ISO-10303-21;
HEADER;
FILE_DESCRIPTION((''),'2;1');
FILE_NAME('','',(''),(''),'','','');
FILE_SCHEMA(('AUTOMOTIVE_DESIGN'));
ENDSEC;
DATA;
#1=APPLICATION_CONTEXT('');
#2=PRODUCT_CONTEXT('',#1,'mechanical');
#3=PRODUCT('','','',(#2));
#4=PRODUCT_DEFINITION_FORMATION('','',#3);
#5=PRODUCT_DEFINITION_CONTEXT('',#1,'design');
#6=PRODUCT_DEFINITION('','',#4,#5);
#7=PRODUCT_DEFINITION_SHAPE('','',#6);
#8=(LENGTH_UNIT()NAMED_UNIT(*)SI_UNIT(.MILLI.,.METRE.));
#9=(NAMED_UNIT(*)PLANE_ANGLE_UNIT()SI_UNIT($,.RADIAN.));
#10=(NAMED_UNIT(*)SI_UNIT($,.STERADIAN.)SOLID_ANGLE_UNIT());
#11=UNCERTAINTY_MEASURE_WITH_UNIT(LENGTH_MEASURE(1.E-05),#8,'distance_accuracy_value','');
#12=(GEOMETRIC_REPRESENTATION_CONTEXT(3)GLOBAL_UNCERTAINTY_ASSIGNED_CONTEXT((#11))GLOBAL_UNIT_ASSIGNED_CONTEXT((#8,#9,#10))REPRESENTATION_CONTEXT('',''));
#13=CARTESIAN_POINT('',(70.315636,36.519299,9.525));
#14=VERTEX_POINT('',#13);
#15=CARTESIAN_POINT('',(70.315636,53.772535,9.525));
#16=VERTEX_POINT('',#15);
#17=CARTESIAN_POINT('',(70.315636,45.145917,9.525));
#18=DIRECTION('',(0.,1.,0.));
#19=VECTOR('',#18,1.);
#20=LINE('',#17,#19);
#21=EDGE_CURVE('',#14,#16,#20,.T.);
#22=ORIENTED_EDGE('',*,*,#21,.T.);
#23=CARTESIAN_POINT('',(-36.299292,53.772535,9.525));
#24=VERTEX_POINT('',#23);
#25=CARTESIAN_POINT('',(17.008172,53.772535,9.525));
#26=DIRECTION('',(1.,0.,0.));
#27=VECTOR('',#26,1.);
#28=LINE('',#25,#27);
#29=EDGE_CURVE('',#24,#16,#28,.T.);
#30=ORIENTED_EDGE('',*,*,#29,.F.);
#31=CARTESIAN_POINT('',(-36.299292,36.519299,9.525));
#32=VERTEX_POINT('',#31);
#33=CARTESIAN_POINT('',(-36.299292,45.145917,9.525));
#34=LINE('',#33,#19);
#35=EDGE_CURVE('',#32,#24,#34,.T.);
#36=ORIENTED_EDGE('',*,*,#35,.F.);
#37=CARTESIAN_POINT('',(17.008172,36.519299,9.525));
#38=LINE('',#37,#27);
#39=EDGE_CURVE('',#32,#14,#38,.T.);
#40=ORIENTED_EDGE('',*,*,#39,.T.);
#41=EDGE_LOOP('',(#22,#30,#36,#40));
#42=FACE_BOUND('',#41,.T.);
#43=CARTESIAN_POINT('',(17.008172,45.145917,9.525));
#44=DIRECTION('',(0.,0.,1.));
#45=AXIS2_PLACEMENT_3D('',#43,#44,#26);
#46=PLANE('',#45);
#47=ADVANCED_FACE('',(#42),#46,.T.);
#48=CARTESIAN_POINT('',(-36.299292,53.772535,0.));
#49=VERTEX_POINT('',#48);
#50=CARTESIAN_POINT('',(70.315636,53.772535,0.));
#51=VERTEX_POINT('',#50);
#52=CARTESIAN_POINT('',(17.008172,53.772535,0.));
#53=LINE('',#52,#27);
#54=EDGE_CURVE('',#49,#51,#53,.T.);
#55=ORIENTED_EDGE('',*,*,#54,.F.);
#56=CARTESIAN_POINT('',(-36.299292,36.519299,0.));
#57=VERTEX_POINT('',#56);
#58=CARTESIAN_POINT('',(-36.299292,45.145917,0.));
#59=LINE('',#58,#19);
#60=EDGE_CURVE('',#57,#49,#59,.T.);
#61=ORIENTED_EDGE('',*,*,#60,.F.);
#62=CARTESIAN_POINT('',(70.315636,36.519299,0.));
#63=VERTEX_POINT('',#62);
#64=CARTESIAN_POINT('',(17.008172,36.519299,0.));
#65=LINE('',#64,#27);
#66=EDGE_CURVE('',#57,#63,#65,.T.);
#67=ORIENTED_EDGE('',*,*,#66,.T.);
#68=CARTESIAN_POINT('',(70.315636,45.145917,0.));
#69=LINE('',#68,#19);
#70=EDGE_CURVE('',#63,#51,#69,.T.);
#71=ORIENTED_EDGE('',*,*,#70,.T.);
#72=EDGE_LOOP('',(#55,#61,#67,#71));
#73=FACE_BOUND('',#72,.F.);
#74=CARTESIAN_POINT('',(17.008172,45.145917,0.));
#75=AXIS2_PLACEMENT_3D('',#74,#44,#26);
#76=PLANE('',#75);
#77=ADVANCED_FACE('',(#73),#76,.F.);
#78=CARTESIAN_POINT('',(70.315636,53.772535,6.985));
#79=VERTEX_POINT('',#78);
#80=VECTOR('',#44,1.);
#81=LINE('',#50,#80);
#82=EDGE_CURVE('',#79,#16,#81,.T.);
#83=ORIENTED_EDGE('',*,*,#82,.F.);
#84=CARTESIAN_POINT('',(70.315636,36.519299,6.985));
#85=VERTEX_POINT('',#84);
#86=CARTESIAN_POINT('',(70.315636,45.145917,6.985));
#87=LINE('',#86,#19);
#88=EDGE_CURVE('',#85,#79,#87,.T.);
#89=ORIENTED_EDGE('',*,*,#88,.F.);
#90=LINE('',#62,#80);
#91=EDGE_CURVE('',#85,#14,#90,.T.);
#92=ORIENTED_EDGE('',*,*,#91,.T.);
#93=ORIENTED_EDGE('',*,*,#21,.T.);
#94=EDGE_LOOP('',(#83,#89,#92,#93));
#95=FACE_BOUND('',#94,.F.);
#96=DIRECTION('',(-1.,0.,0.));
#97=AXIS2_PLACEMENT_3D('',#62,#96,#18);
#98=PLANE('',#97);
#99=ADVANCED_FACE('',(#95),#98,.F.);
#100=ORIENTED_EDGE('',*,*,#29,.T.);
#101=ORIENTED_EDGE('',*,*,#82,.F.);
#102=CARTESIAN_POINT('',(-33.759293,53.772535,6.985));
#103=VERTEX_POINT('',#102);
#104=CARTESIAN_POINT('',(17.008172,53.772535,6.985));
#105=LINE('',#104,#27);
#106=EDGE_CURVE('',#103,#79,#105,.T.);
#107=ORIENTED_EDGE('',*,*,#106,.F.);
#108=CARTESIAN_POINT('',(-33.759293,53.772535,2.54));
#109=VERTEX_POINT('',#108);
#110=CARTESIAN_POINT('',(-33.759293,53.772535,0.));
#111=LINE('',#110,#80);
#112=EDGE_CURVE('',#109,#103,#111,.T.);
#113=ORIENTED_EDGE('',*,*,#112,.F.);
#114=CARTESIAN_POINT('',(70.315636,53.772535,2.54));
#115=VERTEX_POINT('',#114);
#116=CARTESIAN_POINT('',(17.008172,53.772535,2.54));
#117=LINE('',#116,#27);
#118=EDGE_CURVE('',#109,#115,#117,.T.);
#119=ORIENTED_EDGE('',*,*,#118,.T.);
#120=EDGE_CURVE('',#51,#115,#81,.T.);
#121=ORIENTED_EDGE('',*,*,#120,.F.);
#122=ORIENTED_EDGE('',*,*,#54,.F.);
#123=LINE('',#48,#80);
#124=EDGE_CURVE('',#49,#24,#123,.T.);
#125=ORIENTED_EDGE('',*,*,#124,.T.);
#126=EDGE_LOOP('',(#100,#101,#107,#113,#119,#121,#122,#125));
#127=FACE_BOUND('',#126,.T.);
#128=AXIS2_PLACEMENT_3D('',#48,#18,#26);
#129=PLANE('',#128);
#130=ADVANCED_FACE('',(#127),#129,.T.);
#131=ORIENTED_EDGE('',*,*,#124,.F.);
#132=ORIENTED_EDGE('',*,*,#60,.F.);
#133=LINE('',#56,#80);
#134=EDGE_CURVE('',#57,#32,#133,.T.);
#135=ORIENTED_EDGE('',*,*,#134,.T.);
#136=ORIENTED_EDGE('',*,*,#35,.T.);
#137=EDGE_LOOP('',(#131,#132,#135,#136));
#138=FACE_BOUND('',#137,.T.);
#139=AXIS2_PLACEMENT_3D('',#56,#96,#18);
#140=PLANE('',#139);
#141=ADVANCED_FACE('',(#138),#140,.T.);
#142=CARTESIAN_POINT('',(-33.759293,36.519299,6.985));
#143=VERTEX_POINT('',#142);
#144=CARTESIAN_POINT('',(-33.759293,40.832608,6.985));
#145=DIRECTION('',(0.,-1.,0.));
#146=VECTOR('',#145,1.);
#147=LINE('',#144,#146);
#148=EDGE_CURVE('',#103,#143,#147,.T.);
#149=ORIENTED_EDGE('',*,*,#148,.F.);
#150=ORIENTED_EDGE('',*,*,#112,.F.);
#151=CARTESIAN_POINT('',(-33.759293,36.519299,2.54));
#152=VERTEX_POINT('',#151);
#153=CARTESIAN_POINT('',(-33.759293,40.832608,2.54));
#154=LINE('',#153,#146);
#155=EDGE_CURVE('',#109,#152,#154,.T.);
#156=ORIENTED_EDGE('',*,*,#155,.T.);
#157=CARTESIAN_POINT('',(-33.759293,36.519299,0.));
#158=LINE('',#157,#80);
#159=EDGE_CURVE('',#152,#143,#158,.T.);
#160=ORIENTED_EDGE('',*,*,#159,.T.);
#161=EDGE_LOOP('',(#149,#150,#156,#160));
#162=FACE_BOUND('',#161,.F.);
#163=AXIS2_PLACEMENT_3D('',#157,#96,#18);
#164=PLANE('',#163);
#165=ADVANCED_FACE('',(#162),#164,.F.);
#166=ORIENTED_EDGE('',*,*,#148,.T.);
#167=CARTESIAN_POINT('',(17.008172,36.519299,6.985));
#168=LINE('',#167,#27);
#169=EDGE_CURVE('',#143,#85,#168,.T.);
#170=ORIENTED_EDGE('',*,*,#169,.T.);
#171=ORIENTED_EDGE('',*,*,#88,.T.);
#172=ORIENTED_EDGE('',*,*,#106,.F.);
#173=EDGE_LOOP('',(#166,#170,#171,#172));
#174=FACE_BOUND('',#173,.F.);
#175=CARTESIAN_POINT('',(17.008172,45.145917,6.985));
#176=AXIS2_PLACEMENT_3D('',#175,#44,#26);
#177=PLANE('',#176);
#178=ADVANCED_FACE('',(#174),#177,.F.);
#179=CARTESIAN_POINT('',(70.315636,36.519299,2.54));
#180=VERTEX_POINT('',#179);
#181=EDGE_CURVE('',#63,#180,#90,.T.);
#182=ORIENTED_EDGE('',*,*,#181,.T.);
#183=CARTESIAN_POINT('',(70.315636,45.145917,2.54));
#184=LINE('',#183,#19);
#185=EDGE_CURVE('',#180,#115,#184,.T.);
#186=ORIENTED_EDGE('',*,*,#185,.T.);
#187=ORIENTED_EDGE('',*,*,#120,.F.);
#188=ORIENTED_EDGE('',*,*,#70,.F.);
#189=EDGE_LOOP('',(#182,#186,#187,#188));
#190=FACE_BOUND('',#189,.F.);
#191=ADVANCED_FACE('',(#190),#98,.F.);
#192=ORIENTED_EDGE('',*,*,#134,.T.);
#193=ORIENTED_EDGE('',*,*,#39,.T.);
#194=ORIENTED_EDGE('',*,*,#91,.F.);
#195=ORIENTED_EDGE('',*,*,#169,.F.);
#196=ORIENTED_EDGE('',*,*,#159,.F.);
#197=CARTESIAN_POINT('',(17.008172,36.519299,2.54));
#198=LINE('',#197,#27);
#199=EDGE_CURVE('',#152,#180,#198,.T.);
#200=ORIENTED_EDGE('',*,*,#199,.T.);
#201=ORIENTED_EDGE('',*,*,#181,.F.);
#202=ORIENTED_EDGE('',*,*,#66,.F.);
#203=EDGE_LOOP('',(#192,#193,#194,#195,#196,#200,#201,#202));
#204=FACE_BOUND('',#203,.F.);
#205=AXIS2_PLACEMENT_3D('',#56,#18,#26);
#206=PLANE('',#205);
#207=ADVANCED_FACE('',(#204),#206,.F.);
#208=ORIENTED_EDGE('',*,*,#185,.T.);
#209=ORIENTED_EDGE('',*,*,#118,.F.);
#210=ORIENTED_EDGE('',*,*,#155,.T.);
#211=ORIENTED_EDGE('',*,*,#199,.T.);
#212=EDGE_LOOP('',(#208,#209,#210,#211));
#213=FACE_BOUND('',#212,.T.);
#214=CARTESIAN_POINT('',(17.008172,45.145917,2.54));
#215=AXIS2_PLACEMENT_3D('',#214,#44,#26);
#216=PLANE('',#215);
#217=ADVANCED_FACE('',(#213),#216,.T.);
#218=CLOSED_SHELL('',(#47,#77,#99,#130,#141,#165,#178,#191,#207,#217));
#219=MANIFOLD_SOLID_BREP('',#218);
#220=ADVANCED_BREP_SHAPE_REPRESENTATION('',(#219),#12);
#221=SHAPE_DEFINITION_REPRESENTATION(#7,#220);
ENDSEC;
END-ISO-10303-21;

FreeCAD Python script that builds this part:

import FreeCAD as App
import Part
import Sketcher
Q = App.Units.Quantity


def faces_at(feature, points):
    """Names of the faces that lie closest to the given points."""
    faces = feature.Shape.Faces
    near = lambda p: min(range(len(faces)), key=lambda i: faces[i].distToShape(Part.Vertex(*p))[0])
    return sorted({f"Face{near(p) + 1}" for p in points})

doc = App.newDocument("Part")
body = doc.addObject("PartDesign::Body", "Body")

# Sketch on XY plane
sketch1 = body.newObject("Sketcher::SketchObject", "Sketch")
sketch1.AttachmentSupport = (doc.getObject("XY_Plane"), [""])
sketch1.MapMode = "FlatFace"
sketch1.addGeometry([
    Part.LineSegment(App.Vector(-36.299292, 53.772535, 0), App.Vector(-36.299292, 36.519299, 0)),
    Part.LineSegment(App.Vector(-36.299292, 36.519299, 0), App.Vector(70.315636, 36.519299, 0)),
    Part.LineSegment(App.Vector(70.315636, 36.519299, 0), App.Vector(70.315636, 53.772535, 0)),
    Part.LineSegment(App.Vector(70.315636, 53.772535, 0), App.Vector(-36.299292, 53.772535, 0)),
], False)
sketch1.addConstraint([
    Sketcher.Constraint("Coincident", 0, 2, 1, 1),
    Sketcher.Constraint("Coincident", 1, 2, 2, 1),
    Sketcher.Constraint("Coincident", 2, 2, 3, 1),
    Sketcher.Constraint("Coincident", 3, 2, 0, 1),
    Sketcher.Constraint("Vertical", 0),
    Sketcher.Constraint("Horizontal", 1),
    Sketcher.Constraint("Vertical", 2),
    Sketcher.Constraint("Horizontal", 3),
    Sketcher.Constraint("DistanceX", 1, 1, 1, 2, Q("106.614929 mm")),
    Sketcher.Constraint("DistanceY", -1, 1, 0, 2, Q("36.519299 mm")),
    Sketcher.Constraint("DistanceY", 0, 2, 0, 1, Q("17.253236 mm")),
    Sketcher.Constraint("DistanceX", 0, 2, -1, 1, Q("36.299292 mm")),
])
pad1 = body.newObject("PartDesign::Pad", "Pad")
pad1.Profile = sketch1
pad1.Length = Q("0.375 in")
doc.recompute()

thickness = body.newObject("PartDesign::Thickness", "Thickness")
thickness.Base = (pad1, faces_at(pad1, [(17.008, 36.519, 4.763), (70.316, 45.146, 4.763), (17.008, 53.773, 4.763)]))
thickness.Value = Q("0.1 in")
thickness.Reversed = True
thickness.Join = "Arc"

doc.recompute()
